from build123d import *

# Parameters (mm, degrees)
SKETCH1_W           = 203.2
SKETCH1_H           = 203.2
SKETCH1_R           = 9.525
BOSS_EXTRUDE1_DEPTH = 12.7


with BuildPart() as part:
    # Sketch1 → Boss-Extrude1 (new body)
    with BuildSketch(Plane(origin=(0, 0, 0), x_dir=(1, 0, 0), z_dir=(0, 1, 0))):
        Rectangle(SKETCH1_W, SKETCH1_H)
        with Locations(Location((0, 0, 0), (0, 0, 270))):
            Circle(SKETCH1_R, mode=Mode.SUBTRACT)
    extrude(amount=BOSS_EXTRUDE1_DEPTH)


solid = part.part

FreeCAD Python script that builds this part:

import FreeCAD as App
import Part
import Sketcher

V = App.Vector
Q = App.Units.Quantity

doc = App.newDocument("Part")
body = doc.addObject("PartDesign::Body", "Body")

# Sketch on XZ plane
sketch1 = body.newObject("Sketcher::SketchObject", "Sketch")
sketch1.AttachmentSupport = (doc.getObject("XZ_Plane"), [""])
sketch1.MapMode = "FlatFace"
sketch1.addGeometry([
    Part.LineSegment(V(-102, -102, 0), V(-102, 102, 0)),  # 0
    Part.LineSegment(V(-102, 102, 0), V(102, 102, 0)),  # 1
    Part.LineSegment(V(102, 102, 0), V(102, -102, 0)),  # 2
    Part.LineSegment(V(102, -102, 0), V(-102, -102, 0)),  # 3
    Part.Circle(V(0, 0, 0), V(0, 0, 1), 10),  # 4
], False)
sketch1.addConstraint([
    Sketcher.Constraint("Coincident", 0, 2, 1, 1),
    Sketcher.Constraint("Coincident", 1, 2, 2, 1),
    Sketcher.Constraint("Coincident", 2, 2, 3, 1),
    Sketcher.Constraint("Coincident", 3, 2, 0, 1),
    Sketcher.Constraint("Vertical", 0),
    Sketcher.Constraint("Horizontal", 1),
    Sketcher.Constraint("Vertical", 2),
    Sketcher.Constraint("Horizontal", 3),
    Sketcher.Constraint("Coincident", 4, 3, -1, 1),
    Sketcher.Constraint("Symmetric", 0, 2, 2, 2, -1, 1),
    Sketcher.Constraint("Equal", 3, 0),
    Sketcher.Constraint("Diameter", 4, Q("0.75 in")),
    Sketcher.Constraint("DistanceX", 1, 1, 1, 2, Q("8 in")),
])
pad1 = body.newObject("PartDesign::Pad", "Pad")
pad1.Profile = sketch1
pad1.Length = Q("0.5 in")
pad1.Reversed = True

doc.recompute()
